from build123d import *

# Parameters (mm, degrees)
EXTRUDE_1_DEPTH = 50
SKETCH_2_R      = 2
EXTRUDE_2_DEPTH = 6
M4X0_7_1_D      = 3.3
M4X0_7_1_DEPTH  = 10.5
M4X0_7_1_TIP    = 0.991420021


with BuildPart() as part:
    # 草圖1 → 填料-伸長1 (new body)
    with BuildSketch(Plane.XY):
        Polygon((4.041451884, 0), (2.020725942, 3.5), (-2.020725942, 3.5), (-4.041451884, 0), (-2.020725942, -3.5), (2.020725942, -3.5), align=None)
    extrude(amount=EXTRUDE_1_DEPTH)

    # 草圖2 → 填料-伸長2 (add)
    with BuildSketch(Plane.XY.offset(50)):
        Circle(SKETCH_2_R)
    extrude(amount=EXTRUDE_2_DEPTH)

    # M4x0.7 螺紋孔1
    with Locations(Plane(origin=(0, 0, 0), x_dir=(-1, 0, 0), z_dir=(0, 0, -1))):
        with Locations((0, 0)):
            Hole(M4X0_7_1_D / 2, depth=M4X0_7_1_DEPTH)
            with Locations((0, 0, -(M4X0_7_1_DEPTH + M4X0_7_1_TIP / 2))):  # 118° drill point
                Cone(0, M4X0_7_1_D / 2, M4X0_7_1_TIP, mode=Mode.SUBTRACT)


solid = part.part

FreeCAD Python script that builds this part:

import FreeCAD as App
import Part
import Sketcher

V = App.Vector
Q = App.Units.Quantity

doc = App.newDocument("Part")
body = doc.addObject("PartDesign::Body", "Body")

sketch1 = doc.addObject("Sketcher::SketchObject", "Sketch")
body.addObject(sketch1)
sketch1.AttachmentSupport = (doc.XY_Plane, [""])
sketch1.MapMode = "FlatFace"
sketch1.addGeometry([
    Part.LineSegment(V(4, 0, 0), V(2, 3.5, 0)),
    Part.LineSegment(V(2, 3.5, 0), V(-2, 3.5, 0)),
    Part.LineSegment(V(-2, 3.5, 0), V(-4, 0, 0)),
    Part.LineSegment(V(-4, 0, 0), V(-2, -3.5, 0)),
    Part.LineSegment(V(-2, -3.5, 0), V(2, -3.5, 0)),
    Part.LineSegment(V(2, -3.5, 0), V(4, 0, 0)),
], False)
sketch1.addConstraint([
    Sketcher.Constraint("Coincident", 0, 2, 1, 1),
    Sketcher.Constraint("Coincident", 1, 2, 2, 1),
    Sketcher.Constraint("Coincident", 2, 2, 3, 1),
    Sketcher.Constraint("Coincident", 3, 2, 4, 1),
    Sketcher.Constraint("Coincident", 4, 2, 5, 1),
    Sketcher.Constraint("Coincident", 5, 2, 0, 1),
    Sketcher.Constraint("Horizontal", 1),
    Sketcher.Constraint("Horizontal", 4),
    Sketcher.Constraint("Symmetric", 0, 2, 3, 2, -1, 1),
    Sketcher.Constraint("Symmetric", 2, 2, 5, 2, -1, 1),
    Sketcher.Constraint("PointOnObject", 2, 2, -1),
    Sketcher.Constraint("Parallel", 2, 5),
    Sketcher.Constraint("Vertical", 1, 2, 3, 2),
    Sketcher.Constraint("Angle", 0, Q("120 deg")),
    Sketcher.Constraint("DistanceY", 3, 2, 1, 2, Q("7 mm")),
    Sketcher.Constraint("DistanceX", 1, 2, 1, 1, Q("4.041452 mm")),
])
pad1 = doc.addObject("PartDesign::Pad", "Pad")
body.addObject(pad1)
pad1.Profile = sketch1
pad1.Length = 50

sketch2 = doc.addObject("Sketcher::SketchObject", "Sketch001")
body.addObject(sketch2)
sketch2.AttachmentSupport = (doc.XY_Plane, [""])
sketch2.MapMode = "FlatFace"
sketch2.AttachmentOffset = App.Placement(V(0, 0, 50), App.Rotation())
sketch2.addGeometry(Part.Circle(V(0, 0, 0), V(0, 0, 1), 2), False)
sketch2.addConstraint([
    Sketcher.Constraint("Coincident", 0, 3, -1, 1),
    Sketcher.Constraint("Diameter", 0, Q("4 mm")),
])
pad2 = doc.addObject("PartDesign::Pad", "Pad001")
body.addObject(pad2)
pad2.Profile = sketch2
pad2.Length = 6

sketch3 = doc.addObject("Sketcher::SketchObject", "Sketch002")
body.addObject(sketch3)
sketch3.AttachmentSupport = (doc.XY_Plane, [""])
sketch3.MapMode = "FlatFace"
sketch3.addGeometry(Part.Circle(V(0, 0, 0), V(0, 0, 1), 1.6), False)
sketch3.addConstraint([
    Sketcher.Constraint("Coincident", 0, 3, -1, 1),
    Sketcher.Constraint("Diameter", 0, Q("3.3 mm")),
])
doc.recompute()
hole = doc.addObject("PartDesign::Hole", "Hole")
body.addObject(hole)
hole.Profile = sketch3
hole.ThreadType = "None"
hole.Diameter = 3.3
hole.DepthType = "Dimension"
hole.Depth = 10.5
hole.DrillPoint = "Angled"
hole.DrillPointAngle = 118
hole.Reversed = True

doc.recompute()
